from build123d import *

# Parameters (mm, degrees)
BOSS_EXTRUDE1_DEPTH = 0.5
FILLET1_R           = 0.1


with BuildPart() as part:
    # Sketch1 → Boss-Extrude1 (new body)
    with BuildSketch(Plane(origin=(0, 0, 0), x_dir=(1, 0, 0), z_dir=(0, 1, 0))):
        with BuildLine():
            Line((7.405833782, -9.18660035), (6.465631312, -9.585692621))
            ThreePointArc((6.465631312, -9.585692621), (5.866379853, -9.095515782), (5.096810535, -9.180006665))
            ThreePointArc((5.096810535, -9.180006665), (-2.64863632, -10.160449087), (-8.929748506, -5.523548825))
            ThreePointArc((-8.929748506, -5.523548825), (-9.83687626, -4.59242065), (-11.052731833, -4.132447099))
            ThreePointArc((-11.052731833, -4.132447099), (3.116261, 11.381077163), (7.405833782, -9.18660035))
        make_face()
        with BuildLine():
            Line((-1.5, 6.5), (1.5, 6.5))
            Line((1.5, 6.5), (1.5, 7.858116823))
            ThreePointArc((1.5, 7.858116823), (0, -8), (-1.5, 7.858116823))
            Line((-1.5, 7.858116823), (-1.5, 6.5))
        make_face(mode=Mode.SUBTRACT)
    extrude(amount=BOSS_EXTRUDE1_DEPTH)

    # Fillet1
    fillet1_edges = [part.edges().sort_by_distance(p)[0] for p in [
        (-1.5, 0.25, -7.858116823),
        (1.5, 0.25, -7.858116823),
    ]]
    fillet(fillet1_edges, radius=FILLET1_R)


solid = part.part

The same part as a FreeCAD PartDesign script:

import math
import FreeCAD as App
import Part
import Sketcher

V = App.Vector
Q = App.Units.Quantity


def edges_at(feature, points):
    """Names of the edges that pass closest to the given points."""
    edges = feature.Shape.Edges
    near = lambda p: min(range(len(edges)), key=lambda i: edges[i].distToShape(Part.Vertex(*p))[0])
    return sorted({f"Edge{near(p) + 1}" for p in points})

doc = App.newDocument("Part")
params = doc.addObject("Spreadsheet::Sheet", "Params")
for row, (alias, value) in enumerate([
    ("sketch1_radius", "3 mm"),
    ("sketch1_radius2", "1 mm"),
    ("sketch1_radius3", "8 mm"),
    ("sketch1_radius4", "11.8 mm"),
    ("sketch1_radius5", "10.5 mm"),
    ("pad1_length", "0.5 mm"),
    ("fillet_radius", "0.1 mm"),
], start=1):
    params.set(f"A{row}", alias)
    params.set(f"B{row}", "=" + value)
    params.setAlias(f"B{row}", alias)

body = doc.addObject("PartDesign::Body", "Body")

# Sketch on XZ plane
sketch1 = doc.addObject("Sketcher::SketchObject", "Sketch")
body.addObject(sketch1)
sketch1.AttachmentSupport = (doc.XZ_Plane, [""])
sketch1.MapMode = "FlatFace"
sketch1.addGeometry(Part.LineSegment(V(6.5, 9.6, 0), V(7.4, 9.2, 0)), False)
sketch1.addGeometry(Part.ArcOfCircle(Part.Circle(V(0, 0, 0), V(0, 0, 1), 11.8), math.radians(159), math.radians(411)), False)
sketch1.addGeometry(Part.ArcOfCircle(Part.Circle(V(-11.5, 7.1, 0), V(0, 0, 1), 3), math.radians(-82), math.radians(-32)), False)
sketch1.addGeometry(Part.ArcOfCircle(Part.Circle(V(0, 0, 0), V(0, 0, 1), 10.5), math.radians(61), math.radians(148)), False)
sketch1.addGeometry(Part.ArcOfCircle(Part.Circle(V(5.6, 10.1, 0), V(0, 0, 1), 1), math.radians(-119), math.radians(-28)), False)
sketch1.addGeometry(Part.LineSegment(V(-1.5, -6.5, 0), V(1.5, -6.5, 0)), False)
sketch1.addGeometry(Part.LineSegment(V(1.5, -6.5, 0), V(1.5, -7.9, 0)), False)
sketch1.addGeometry(Part.ArcOfCircle(Part.Circle(V(0, 0, 0), V(0, 0, 1), 8), math.radians(-79), math.radians(259)), False)
sketch1.addGeometry(Part.LineSegment(V(-1.5, -7.9, 0), V(-1.5, -6.5, 0)), False)
sketch1.addConstraint(Sketcher.Constraint("Coincident", 0, 2, 1, 2))
sketch1.addConstraint(Sketcher.Constraint("Coincident", 1, 1, 2, 1))
sketch1.addConstraint(Sketcher.Constraint("Tangent", 2, 2, 3, 2))
sketch1.addConstraint(Sketcher.Constraint("Tangent", 3, 1, 4, 1))
sketch1.addConstraint(Sketcher.Constraint("Coincident", 4, 2, 0, 1))
sketch1.addConstraint(Sketcher.Constraint("Coincident", 5, 2, 6, 1))
sketch1.addConstraint(Sketcher.Constraint("Coincident", 6, 2, 7, 1))
sketch1.addConstraint(Sketcher.Constraint("Coincident", 7, 2, 8, 1))
sketch1.addConstraint(Sketcher.Constraint("Coincident", 8, 2, 5, 1))
sketch1.addConstraint(Sketcher.Constraint("Horizontal", 5))
sketch1.addConstraint(Sketcher.Constraint("Vertical", 6))
sketch1.addConstraint(Sketcher.Constraint("Vertical", 8))
sketch1.addConstraint(Sketcher.Constraint("Coincident", 1, 3, -1, 1))
sketch1.addConstraint(Sketcher.Constraint("Coincident", 3, 3, -1, 1))
sketch1.addConstraint(Sketcher.Constraint("Coincident", 7, 3, -1, 1))
sketch1.addConstraint(Sketcher.Constraint("Horizontal", 6, 2, 7, 2))
sketch1.addConstraint(Sketcher.Constraint("Radius", 2, Q("3 mm")))
sketch1.addConstraint(Sketcher.Constraint("Radius", 4, Q("1 mm")))
sketch1.addConstraint(Sketcher.Constraint("Radius", 7, Q("8 mm")))
sketch1.addConstraint(Sketcher.Constraint("Radius", 1, Q("11.8 mm")))
sketch1.addConstraint(Sketcher.Constraint("Radius", 3, Q("10.5 mm")))
sketch1.addConstraint(Sketcher.Constraint("DistanceX", 5, 1, 5, 2, Q("3 mm")))
sketch1.addConstraint(Sketcher.Constraint("Angle", 0, Q("-23 deg")))
sketch1.addConstraint(Sketcher.Constraint("DistanceY", 5, 2, -1, 1, Q("6.5 mm")))
sketch1.addConstraint(Sketcher.Constraint("Distance", 0, Q("1.021399 mm")))
sketch1.addConstraint(Sketcher.Constraint("DistanceY", -1, 1, 0, 2, Q("9.1866 mm")))
sketch1.addConstraint(Sketcher.Constraint("DistanceY", 1, 1, 2, 2, Q("1.391102 mm")))
sketch1.setExpression("Constraints[16]", "Params.sketch1_radius")
sketch1.setExpression("Constraints[17]", "Params.sketch1_radius2")
sketch1.setExpression("Constraints[18]", "Params.sketch1_radius3")
sketch1.setExpression("Constraints[19]", "Params.sketch1_radius4")
sketch1.setExpression("Constraints[20]", "Params.sketch1_radius5")
pad1 = doc.addObject("PartDesign::Pad", "Pad")
body.addObject(pad1)
pad1.Profile = sketch1
pad1.setExpression("Length", "Params.pad1_length")
pad1.Reversed = True
doc.recompute()

fillet = doc.addObject("PartDesign::Fillet", "Fillet")
body.addObject(fillet)
fillet.Base = (pad1, edges_at(pad1, [(-1.5, 0.25, -7.858), (1.5, 0.25, -7.858)]))
fillet.setExpression("Radius", "Params.fillet_radius")

doc.recompute()
